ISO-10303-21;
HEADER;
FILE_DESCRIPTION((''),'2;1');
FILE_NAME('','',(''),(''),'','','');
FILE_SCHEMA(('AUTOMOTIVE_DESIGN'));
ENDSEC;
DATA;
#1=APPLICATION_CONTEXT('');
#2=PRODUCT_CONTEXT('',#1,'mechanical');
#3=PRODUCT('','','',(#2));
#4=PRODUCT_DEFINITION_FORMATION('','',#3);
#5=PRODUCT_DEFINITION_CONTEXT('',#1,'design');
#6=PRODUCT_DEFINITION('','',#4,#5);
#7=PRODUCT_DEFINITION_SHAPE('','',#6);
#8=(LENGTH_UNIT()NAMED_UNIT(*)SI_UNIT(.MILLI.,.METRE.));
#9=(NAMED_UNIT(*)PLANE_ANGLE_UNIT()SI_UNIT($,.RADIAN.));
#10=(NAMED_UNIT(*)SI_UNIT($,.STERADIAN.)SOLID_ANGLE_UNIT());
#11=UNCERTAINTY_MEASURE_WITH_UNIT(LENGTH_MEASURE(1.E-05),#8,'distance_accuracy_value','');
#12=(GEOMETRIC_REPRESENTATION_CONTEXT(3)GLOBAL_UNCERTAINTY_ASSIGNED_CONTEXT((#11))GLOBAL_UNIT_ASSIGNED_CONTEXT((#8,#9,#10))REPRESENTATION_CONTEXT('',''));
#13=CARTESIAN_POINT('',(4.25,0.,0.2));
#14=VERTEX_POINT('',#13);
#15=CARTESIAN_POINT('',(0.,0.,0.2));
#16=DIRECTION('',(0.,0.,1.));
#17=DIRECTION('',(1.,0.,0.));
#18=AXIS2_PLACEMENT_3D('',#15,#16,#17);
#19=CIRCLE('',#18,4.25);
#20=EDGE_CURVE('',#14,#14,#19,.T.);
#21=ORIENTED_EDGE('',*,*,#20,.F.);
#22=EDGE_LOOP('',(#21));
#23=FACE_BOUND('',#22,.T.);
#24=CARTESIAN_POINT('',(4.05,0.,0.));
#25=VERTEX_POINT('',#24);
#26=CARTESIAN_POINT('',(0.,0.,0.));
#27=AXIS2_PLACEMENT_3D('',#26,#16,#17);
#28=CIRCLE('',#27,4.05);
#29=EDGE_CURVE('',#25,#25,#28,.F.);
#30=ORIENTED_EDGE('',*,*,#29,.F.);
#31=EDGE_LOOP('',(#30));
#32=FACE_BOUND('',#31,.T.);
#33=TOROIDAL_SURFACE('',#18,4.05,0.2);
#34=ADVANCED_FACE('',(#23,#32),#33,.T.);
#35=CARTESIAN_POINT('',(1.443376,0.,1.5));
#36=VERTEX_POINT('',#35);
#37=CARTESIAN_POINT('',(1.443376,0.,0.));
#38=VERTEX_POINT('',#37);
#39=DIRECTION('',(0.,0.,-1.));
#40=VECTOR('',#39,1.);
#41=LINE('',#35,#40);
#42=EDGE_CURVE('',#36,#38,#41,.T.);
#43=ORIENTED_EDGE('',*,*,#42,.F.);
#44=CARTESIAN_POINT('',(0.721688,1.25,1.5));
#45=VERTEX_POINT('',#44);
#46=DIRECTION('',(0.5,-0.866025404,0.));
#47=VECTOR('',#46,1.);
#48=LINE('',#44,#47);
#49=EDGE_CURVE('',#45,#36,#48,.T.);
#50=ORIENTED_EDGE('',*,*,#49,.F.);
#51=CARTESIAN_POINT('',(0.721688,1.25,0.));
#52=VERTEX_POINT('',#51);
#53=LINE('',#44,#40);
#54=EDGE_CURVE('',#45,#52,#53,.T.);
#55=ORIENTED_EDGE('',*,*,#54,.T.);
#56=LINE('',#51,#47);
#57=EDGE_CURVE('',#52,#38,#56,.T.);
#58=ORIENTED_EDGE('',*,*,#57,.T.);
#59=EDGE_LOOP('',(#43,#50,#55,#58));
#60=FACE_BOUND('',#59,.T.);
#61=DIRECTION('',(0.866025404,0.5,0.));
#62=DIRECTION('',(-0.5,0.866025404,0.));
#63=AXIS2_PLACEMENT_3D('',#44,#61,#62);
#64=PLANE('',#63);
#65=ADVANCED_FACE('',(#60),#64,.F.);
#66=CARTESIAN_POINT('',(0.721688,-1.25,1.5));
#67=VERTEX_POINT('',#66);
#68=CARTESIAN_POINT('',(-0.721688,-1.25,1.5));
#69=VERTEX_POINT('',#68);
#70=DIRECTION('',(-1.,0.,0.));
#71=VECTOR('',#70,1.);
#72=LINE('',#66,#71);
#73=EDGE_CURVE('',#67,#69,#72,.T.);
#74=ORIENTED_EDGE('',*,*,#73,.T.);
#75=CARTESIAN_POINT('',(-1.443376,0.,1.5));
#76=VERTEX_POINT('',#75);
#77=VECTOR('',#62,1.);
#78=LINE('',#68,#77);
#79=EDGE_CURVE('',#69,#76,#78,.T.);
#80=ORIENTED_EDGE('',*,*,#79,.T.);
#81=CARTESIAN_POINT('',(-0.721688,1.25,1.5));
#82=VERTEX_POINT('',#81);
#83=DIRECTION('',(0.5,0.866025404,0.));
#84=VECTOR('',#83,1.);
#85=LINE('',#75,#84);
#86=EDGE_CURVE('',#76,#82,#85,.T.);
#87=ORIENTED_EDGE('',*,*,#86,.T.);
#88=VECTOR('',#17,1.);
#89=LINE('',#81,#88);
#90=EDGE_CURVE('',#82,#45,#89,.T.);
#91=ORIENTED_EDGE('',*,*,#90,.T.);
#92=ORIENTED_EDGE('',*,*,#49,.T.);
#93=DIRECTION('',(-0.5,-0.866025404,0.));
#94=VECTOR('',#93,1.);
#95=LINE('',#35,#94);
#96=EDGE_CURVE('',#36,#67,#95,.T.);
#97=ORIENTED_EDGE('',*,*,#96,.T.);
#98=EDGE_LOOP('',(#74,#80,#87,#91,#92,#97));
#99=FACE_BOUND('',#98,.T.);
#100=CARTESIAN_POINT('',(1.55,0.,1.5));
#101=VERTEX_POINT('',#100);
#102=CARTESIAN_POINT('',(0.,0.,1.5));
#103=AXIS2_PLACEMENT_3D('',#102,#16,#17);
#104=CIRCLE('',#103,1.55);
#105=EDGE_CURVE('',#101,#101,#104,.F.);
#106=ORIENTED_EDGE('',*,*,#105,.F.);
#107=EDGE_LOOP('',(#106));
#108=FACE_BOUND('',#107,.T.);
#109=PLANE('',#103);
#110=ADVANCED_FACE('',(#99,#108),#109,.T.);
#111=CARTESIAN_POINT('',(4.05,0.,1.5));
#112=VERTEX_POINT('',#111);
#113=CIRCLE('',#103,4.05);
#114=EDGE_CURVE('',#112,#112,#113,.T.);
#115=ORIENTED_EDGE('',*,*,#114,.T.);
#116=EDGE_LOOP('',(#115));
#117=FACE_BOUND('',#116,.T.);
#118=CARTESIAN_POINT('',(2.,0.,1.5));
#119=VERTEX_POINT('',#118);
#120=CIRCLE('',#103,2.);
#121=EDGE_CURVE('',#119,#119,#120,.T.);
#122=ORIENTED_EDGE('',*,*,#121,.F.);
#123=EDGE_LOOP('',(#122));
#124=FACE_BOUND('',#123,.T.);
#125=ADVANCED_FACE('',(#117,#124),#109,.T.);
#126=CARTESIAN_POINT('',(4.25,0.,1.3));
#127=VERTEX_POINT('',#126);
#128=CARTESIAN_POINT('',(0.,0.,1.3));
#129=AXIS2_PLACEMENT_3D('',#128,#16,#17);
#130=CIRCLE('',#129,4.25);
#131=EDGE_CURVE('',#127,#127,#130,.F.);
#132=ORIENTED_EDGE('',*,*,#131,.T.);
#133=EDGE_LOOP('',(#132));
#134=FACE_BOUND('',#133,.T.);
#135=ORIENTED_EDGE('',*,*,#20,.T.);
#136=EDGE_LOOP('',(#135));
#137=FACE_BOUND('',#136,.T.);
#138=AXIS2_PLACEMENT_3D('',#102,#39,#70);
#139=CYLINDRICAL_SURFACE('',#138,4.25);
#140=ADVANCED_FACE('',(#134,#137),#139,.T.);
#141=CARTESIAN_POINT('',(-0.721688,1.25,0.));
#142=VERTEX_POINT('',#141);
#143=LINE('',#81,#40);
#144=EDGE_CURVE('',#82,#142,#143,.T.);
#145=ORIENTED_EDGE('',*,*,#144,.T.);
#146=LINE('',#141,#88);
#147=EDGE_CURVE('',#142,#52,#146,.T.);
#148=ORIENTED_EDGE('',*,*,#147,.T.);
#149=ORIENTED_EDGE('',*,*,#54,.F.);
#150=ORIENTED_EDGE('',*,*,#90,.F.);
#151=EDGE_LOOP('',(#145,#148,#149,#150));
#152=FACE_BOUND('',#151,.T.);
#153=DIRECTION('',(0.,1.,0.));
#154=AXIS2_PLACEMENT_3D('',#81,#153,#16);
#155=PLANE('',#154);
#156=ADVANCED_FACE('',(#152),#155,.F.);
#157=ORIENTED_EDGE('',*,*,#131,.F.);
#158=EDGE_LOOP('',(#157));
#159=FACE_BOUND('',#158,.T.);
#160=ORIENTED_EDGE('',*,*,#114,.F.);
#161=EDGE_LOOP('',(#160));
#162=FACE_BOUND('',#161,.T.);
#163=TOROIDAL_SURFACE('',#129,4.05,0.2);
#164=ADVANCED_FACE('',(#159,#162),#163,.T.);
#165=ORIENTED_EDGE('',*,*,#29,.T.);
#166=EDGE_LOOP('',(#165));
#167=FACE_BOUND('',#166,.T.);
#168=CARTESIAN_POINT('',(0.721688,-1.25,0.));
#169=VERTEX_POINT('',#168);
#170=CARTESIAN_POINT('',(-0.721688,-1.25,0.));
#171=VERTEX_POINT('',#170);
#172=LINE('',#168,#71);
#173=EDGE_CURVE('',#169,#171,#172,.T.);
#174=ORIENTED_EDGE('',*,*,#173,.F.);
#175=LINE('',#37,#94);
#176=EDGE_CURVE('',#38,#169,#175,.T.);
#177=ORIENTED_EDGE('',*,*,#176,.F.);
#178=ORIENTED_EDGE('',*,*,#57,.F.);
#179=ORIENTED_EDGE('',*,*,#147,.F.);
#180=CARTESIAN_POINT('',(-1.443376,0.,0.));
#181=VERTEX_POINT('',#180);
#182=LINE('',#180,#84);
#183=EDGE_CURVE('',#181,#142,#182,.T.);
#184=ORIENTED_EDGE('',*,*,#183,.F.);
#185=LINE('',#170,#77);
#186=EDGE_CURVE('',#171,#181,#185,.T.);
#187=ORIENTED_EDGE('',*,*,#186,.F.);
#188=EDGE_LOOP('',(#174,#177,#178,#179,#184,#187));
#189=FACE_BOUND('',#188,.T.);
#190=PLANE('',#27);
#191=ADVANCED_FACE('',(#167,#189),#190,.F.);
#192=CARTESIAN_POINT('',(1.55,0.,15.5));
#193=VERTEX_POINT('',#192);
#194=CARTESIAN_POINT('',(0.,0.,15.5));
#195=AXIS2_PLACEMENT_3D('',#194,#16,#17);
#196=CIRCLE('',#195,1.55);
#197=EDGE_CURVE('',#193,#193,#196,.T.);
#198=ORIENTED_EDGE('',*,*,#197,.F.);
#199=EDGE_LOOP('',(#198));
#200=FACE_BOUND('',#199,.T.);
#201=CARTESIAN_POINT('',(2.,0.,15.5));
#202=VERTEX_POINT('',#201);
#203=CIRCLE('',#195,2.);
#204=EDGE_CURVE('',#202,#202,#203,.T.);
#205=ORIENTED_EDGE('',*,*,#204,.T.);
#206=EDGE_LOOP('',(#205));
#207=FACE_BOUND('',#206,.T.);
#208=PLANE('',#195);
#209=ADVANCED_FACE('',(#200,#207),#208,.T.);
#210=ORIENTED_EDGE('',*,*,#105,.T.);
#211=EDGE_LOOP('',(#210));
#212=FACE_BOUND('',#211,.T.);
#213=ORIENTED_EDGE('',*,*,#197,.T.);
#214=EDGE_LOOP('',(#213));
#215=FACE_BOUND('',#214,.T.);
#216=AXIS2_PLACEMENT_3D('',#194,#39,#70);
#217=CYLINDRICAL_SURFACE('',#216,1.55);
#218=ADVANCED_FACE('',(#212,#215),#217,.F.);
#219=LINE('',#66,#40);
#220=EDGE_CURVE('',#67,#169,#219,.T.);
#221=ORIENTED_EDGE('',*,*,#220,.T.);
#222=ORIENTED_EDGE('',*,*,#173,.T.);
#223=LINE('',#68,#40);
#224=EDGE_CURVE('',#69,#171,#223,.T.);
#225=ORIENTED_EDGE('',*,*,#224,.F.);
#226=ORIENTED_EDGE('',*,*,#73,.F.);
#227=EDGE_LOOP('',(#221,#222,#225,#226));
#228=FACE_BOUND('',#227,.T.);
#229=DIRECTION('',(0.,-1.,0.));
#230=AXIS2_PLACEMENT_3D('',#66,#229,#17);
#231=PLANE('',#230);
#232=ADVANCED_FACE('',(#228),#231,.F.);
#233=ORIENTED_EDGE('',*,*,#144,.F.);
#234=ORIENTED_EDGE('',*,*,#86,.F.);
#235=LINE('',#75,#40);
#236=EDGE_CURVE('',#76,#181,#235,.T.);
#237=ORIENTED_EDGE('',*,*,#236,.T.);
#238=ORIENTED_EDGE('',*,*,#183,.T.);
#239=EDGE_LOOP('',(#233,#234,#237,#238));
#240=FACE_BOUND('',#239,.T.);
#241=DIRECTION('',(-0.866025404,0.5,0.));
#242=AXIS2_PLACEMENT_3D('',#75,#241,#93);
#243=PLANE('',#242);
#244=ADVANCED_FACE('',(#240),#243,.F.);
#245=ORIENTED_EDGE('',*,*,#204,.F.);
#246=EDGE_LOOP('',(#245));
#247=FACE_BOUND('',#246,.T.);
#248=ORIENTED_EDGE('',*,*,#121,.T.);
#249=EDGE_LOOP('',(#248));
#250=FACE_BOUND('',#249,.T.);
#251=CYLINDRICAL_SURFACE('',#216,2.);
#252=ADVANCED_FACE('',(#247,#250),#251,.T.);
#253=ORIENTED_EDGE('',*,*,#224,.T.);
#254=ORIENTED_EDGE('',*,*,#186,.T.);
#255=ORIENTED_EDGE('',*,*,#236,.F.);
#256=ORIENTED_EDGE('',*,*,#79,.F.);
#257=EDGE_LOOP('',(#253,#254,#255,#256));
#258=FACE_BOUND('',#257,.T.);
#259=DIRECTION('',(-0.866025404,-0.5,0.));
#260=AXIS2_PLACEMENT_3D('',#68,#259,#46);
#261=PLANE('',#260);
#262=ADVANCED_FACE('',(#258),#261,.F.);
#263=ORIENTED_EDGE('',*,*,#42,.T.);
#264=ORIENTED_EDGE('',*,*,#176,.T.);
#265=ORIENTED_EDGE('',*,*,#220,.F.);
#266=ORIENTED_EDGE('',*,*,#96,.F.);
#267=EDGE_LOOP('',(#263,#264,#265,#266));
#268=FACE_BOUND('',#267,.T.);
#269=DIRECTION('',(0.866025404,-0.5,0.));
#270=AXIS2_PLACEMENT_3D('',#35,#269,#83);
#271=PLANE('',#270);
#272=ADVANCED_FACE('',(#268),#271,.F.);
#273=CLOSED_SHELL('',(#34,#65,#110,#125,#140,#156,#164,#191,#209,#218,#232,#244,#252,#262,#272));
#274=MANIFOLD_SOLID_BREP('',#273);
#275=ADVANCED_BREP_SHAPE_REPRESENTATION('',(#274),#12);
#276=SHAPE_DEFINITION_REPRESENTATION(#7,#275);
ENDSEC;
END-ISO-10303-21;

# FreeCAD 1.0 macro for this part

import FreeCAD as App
import Part
import Sketcher
Q = App.Units.Quantity


def edges_at(feature, points):
    """Names of the edges that pass closest to the given points."""
    edges = feature.Shape.Edges
    near = lambda p: min(range(len(edges)), key=lambda i: edges[i].distToShape(Part.Vertex(*p))[0])
    return sorted({f"Edge{near(p) + 1}" for p in points})


def add_polygon(sketch, points):
    """Adds a closed chain of lines whose ends are joined by coincident constraints."""
    first, n = sketch.GeometryCount, len(points)
    for a, b in zip(points, points[1:] + points[:1]):
        sketch.addGeometry(Part.LineSegment(App.Vector(*a, 0), App.Vector(*b, 0)), False)
    for i in range(n):
        sketch.addConstraint(Sketcher.Constraint("Coincident", first + i, 2, first + (i + 1) % n, 1))

doc = App.newDocument("Part")
params = doc.addObject("Spreadsheet::Sheet", "Params")
for row, (alias, value) in enumerate([
    ("sketch1_diameter", "8.5 mm"),
    ("pad1_length", "1.5 mm"),
    ("sketch2_diameter", "4 mm"),
    ("sketch2_diameter2", "3.1 mm"),
    ("pad2_length", "14 mm"),
    ("fillet_radius", "0.2 mm"),
    ("pocket1_length", "1.5 mm"),
], start=1):
    params.set(f"A{row}", alias)
    params.set(f"B{row}", "=" + value)
    params.setAlias(f"B{row}", alias)

body = doc.addObject("PartDesign::Body", "Body")

# Sketch on XY plane
sketch1 = body.newObject("Sketcher::SketchObject", "Sketch")
sketch1.AttachmentSupport = (doc.getObject("XY_Plane"), [""])
sketch1.MapMode = "FlatFace"
sketch1.addGeometry(Part.Circle(App.Vector(0, 0, 0), App.Vector(0, 0, 1), 4.2), False)
sketch1.addConstraint([
    Sketcher.Constraint("Coincident", 0, 3, -1, 1),
    Sketcher.Constraint("Diameter", 0, 8.5),
])
sketch1.setExpression("Constraints[1]", "Params.sketch1_diameter")
pad1 = body.newObject("PartDesign::Pad", "Pad")
pad1.Profile = sketch1
pad1.setExpression("Length", "Params.pad1_length")

# Sketch on XY plane
sketch2 = body.newObject("Sketcher::SketchObject", "Sketch001")
sketch2.AttachmentSupport = (doc.getObject("XY_Plane"), [""])
sketch2.MapMode = "FlatFace"
sketch2.AttachmentOffset = App.Placement(App.Vector(0, 0, 1.5), App.Rotation())
sketch2.addGeometry([
    Part.Circle(App.Vector(0, 0, 0), App.Vector(0, 0, 1), 2),
    Part.Circle(App.Vector(0, 0, 0), App.Vector(0, 0, 1), 1.6),
], False)
sketch2.addConstraint([
    Sketcher.Constraint("Coincident", 0, 3, -1, 1),
    Sketcher.Constraint("Coincident", 1, 3, -1, 1),
    Sketcher.Constraint("Diameter", 0, 4.0),
    Sketcher.Constraint("Diameter", 1, 3.1),
])
sketch2.setExpression("Constraints[2]", "Params.sketch2_diameter")
sketch2.setExpression("Constraints[3]", "Params.sketch2_diameter2")
pad2 = body.newObject("PartDesign::Pad", "Pad001")
pad2.Profile = sketch2
pad2.setExpression("Length", "Params.pad2_length")
doc.recompute()

fillet = body.newObject("PartDesign::Fillet", "Fillet")
fillet.Base = (pad2, edges_at(pad2, [(-4.25, 0, 0), (-4.25, 0, 1.5)]))
fillet.setExpression("Radius", "Params.fillet_radius")

# Sketch on XY plane
sketch3 = body.newObject("Sketcher::SketchObject", "Sketch002")
sketch3.AttachmentSupport = (doc.getObject("XY_Plane"), [""])
sketch3.MapMode = "FlatFace"
add_polygon(sketch3, [(-1.4, 0), (-0.7, 1.2), (0.7, 1.2), (1.4, 0), (0.7, -1.2), (-0.7, -1.2)])  # lines 0-5
sketch3.addConstraint([
    Sketcher.Constraint("Horizontal", 1),
    Sketcher.Constraint("Horizontal", 4),
    Sketcher.Constraint("Symmetric", 0, 2, 3, 2, -1, 1),
    Sketcher.Constraint("Symmetric", 2, 2, 5, 2, -1, 1),
    Sketcher.Constraint("PointOnObject", 2, 2, -1),
    Sketcher.Constraint("Parallel", 2, 5),
    Sketcher.Constraint("Vertical", 1, 2, 3, 2),
    Sketcher.Constraint("Angle", 0, Q("60 deg")),
    Sketcher.Constraint("DistanceY", 3, 2, 1, 2, 2.5),
    Sketcher.Constraint("DistanceX", 1, 1, 1, 2, 1.443376),
])
pocket1 = body.newObject("PartDesign::Pocket", "Pocket")
pocket1.Profile = sketch3
pocket1.setExpression("Length", "Params.pocket1_length")
pocket1.Reversed = True

doc.recompute()
